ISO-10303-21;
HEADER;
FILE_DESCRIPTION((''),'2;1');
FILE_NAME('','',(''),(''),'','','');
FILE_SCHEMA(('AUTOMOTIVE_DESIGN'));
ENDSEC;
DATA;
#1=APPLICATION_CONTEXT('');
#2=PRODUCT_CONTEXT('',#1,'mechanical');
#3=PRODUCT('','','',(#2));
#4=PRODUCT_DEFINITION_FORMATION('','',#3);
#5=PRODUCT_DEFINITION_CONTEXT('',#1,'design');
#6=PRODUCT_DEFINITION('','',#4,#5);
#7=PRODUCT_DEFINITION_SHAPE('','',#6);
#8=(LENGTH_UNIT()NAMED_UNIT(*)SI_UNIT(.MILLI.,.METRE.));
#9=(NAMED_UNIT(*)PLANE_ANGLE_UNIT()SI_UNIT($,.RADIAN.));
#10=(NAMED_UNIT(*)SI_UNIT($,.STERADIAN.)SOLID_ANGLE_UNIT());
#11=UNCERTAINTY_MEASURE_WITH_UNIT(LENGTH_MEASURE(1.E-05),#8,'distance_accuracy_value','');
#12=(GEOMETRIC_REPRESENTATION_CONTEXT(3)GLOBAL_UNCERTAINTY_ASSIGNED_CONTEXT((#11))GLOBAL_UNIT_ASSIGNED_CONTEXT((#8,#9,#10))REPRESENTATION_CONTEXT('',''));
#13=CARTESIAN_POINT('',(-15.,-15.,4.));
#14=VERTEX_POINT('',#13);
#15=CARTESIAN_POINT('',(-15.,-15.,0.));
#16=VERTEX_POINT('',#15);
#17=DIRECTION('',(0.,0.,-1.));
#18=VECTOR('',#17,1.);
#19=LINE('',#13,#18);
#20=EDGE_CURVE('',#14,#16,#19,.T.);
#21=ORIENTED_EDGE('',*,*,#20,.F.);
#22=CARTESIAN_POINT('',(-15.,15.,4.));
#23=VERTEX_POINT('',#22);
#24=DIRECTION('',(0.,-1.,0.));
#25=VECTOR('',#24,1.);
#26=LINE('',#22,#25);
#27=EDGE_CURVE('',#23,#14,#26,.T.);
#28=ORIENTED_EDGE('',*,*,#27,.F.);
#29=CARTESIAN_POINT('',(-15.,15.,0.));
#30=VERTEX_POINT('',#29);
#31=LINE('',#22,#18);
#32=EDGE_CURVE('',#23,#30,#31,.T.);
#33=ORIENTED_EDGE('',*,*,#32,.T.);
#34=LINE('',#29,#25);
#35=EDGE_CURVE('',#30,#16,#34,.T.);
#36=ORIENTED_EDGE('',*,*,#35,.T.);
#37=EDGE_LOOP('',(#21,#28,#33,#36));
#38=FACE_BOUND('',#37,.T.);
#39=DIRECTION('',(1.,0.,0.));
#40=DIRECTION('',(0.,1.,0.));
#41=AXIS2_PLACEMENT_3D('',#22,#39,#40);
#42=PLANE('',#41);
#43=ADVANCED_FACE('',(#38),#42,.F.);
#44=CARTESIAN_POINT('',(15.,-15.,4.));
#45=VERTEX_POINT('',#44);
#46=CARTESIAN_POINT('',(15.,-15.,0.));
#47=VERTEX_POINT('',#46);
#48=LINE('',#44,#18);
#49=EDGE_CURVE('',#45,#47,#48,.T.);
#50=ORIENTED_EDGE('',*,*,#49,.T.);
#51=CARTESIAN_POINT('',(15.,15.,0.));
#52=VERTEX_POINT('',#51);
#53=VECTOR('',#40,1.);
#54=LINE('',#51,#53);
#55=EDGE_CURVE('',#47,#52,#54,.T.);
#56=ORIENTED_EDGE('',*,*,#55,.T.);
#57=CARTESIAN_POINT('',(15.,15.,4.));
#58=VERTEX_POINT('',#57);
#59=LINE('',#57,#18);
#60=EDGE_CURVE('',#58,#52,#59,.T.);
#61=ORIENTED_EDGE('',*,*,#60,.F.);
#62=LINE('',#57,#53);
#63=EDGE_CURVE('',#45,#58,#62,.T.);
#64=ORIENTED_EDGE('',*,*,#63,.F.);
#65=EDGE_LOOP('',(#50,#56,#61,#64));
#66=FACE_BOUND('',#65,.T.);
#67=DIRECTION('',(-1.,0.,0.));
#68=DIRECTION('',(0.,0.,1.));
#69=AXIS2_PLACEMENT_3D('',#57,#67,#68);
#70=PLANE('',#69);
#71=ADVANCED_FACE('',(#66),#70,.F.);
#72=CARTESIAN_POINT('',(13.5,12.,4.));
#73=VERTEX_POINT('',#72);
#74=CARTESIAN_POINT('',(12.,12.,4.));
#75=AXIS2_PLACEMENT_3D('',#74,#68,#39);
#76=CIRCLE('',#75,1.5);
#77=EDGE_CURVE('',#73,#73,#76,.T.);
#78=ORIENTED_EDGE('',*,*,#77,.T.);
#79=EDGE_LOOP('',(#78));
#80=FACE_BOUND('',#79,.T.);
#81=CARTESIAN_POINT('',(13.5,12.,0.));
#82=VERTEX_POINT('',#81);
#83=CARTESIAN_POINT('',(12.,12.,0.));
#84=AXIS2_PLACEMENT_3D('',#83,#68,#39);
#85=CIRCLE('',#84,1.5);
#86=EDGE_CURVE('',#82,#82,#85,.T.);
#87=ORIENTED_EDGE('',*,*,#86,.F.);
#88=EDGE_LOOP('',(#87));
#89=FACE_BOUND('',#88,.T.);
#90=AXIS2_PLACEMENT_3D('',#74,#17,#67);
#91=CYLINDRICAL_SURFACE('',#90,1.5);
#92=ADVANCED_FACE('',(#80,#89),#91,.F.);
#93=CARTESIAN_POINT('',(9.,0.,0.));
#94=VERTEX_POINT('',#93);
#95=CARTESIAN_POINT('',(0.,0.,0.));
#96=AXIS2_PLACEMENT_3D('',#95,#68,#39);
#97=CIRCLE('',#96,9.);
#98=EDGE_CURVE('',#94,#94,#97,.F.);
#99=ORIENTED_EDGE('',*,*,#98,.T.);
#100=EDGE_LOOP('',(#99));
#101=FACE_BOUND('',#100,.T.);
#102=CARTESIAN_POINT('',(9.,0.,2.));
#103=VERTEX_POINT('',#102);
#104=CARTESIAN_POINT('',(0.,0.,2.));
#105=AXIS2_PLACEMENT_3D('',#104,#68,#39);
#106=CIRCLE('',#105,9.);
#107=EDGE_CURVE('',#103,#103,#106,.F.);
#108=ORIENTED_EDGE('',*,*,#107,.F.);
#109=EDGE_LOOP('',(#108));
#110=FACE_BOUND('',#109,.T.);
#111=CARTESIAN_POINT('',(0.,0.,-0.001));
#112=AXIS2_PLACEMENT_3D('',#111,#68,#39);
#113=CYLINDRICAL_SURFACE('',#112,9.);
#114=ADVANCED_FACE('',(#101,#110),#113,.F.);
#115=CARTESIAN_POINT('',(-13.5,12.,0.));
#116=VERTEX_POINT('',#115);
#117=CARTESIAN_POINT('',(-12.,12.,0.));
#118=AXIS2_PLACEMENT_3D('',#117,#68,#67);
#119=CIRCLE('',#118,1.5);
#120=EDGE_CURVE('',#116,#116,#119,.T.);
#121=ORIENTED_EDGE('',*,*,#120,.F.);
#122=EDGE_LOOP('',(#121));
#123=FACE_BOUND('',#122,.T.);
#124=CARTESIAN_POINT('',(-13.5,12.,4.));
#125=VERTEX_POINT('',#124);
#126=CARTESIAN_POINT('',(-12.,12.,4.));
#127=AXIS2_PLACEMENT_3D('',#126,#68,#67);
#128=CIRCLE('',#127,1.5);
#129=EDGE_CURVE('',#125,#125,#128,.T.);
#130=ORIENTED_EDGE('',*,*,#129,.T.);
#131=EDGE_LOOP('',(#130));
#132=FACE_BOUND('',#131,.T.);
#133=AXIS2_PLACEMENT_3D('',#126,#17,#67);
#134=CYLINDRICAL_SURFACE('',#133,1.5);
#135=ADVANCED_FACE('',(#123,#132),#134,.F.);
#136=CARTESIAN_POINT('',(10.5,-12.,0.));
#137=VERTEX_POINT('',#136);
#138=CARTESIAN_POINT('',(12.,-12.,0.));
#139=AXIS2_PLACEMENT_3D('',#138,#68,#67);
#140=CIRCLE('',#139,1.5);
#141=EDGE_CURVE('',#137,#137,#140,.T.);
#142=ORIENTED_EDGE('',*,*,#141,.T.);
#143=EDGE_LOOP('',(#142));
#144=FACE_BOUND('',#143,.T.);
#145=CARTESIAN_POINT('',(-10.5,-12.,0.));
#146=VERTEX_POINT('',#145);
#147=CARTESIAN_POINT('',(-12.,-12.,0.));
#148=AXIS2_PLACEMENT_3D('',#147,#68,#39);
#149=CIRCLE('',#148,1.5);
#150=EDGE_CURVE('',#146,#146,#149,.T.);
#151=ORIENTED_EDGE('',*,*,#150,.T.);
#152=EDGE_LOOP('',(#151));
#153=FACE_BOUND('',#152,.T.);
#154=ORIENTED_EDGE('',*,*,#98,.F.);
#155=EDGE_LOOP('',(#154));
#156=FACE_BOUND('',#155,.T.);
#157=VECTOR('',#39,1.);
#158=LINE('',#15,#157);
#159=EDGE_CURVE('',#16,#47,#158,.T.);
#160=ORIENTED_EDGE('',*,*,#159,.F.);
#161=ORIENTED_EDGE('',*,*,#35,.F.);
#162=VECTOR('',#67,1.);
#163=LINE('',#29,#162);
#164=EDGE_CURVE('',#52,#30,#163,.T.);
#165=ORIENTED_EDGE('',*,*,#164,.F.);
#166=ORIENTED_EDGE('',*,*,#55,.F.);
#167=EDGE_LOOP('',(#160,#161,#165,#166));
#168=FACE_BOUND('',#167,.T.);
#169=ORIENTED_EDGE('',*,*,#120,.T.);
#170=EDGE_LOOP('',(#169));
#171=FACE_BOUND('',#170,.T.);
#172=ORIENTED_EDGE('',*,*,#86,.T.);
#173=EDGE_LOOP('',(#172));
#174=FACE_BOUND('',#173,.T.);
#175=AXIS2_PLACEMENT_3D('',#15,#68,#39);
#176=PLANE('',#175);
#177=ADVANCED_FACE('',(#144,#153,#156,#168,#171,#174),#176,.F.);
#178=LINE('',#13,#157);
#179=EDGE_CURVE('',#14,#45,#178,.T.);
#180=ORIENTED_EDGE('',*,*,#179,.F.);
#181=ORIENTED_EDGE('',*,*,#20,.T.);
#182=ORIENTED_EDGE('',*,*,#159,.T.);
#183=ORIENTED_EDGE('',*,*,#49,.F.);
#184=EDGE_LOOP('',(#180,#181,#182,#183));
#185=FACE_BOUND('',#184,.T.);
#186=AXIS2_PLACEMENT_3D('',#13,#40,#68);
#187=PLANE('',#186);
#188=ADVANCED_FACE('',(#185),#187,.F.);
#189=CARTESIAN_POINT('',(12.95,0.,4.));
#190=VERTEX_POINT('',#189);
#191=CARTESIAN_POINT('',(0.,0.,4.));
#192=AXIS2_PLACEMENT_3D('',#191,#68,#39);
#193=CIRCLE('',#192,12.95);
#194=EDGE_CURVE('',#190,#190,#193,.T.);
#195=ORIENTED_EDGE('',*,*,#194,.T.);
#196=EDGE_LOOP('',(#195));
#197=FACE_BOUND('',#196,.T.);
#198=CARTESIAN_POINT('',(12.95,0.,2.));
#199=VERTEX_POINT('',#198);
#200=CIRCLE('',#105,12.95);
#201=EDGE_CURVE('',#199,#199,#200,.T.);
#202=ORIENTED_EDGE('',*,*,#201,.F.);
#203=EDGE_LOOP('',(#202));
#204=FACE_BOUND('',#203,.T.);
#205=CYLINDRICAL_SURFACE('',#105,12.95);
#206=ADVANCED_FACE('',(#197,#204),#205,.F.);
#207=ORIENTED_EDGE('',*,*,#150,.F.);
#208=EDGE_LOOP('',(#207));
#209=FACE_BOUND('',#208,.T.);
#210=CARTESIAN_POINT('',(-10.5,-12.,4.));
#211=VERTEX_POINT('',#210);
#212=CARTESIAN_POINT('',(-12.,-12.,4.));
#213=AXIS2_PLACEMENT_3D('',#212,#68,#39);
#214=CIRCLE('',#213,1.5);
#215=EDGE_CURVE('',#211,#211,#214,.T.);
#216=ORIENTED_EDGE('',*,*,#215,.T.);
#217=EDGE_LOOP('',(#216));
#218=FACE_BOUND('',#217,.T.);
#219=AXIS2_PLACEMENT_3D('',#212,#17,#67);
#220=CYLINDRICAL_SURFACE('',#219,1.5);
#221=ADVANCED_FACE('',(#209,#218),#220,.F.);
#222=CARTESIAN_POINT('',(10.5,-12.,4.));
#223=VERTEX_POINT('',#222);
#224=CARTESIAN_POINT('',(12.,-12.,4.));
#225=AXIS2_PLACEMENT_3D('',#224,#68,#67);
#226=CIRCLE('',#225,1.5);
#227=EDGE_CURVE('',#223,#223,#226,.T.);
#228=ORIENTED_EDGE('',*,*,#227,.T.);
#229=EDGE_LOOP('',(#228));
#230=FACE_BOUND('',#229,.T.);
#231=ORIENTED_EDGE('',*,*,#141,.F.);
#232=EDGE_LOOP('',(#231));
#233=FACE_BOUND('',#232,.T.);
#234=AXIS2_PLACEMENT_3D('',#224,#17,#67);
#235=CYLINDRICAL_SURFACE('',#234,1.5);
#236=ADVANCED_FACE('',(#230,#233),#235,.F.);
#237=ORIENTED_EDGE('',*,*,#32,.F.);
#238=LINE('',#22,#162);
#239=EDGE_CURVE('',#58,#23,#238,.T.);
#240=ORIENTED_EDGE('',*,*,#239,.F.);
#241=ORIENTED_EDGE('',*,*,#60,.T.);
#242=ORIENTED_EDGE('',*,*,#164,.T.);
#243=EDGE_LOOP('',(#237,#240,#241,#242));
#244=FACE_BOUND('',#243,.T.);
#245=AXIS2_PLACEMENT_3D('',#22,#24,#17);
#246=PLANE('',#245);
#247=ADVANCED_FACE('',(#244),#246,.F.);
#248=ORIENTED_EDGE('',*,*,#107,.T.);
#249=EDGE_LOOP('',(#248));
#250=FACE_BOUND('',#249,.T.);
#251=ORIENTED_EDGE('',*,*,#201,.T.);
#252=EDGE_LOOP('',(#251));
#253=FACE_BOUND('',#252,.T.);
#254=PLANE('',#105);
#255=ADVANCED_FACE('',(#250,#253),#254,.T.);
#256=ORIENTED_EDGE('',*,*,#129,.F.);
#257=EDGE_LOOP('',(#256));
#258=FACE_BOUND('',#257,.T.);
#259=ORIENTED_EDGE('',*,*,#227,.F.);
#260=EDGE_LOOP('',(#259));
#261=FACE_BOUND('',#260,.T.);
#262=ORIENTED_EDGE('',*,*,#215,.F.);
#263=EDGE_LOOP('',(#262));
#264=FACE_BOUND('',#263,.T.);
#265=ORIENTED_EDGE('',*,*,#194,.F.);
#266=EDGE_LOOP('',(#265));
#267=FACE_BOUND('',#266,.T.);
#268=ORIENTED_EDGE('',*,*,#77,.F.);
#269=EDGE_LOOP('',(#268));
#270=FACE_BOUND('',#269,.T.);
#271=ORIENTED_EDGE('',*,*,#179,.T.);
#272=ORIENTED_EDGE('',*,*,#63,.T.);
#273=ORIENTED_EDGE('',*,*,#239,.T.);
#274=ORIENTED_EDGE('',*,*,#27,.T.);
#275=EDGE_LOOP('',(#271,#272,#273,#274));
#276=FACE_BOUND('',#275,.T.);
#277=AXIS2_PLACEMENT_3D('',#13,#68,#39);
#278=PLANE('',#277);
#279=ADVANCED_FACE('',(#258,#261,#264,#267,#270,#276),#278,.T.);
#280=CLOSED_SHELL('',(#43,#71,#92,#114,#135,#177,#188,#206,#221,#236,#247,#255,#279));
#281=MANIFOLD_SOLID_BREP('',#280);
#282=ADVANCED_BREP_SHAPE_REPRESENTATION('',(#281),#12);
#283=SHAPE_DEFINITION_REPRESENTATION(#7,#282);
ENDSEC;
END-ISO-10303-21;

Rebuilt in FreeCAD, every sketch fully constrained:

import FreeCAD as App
import Part
import Sketcher

doc = App.newDocument("Part")
body = doc.addObject("PartDesign::Body", "Body")

sketch1 = body.newObject("Sketcher::SketchObject", "Sketch")
sketch1.AttachmentSupport = (doc.getObject("XY_Plane"), [""])
sketch1.MapMode = "FlatFace"
sketch1.addGeometry([
    Part.LineSegment(App.Vector(-15, 15, 0), App.Vector(-15, -15, 0)),
    Part.LineSegment(App.Vector(-15, -15, 0), App.Vector(15, -15, 0)),
    Part.LineSegment(App.Vector(15, -15, 0), App.Vector(15, 15, 0)),
    Part.LineSegment(App.Vector(15, 15, 0), App.Vector(-15, 15, 0)),
    Part.Circle(App.Vector(-12, -12, 0), App.Vector(0, 0, 1), 1.5),
    Part.Circle(App.Vector(12, -12, 0), App.Vector(0, 0, 1), 1.5),
    Part.Circle(App.Vector(-12, 12, 0), App.Vector(0, 0, 1), 1.5),
    Part.Circle(App.Vector(12, 12, 0), App.Vector(0, 0, 1), 1.5),
], False)
sketch1.addConstraint([
    Sketcher.Constraint("Coincident", 0, 2, 1, 1),
    Sketcher.Constraint("Coincident", 1, 2, 2, 1),
    Sketcher.Constraint("Coincident", 2, 2, 3, 1),
    Sketcher.Constraint("Coincident", 3, 2, 0, 1),
    Sketcher.Constraint("Vertical", 0),
    Sketcher.Constraint("Horizontal", 1),
    Sketcher.Constraint("Vertical", 2),
    Sketcher.Constraint("Horizontal", 3),
    Sketcher.Constraint("Equal", 4, 5),
    Sketcher.Constraint("Equal", 5, 6),
    Sketcher.Constraint("Equal", 6, 7),
    Sketcher.Constraint("Symmetric", 5, 3, 6, 3, -1, 1),
    Sketcher.Constraint("Symmetric", 4, 3, 7, 3, -1, 1),
    Sketcher.Constraint("Symmetric", 0, 2, 2, 2, -1, 1),
    Sketcher.Constraint("Symmetric", 4, 3, 5, 3, -2),
    Sketcher.Constraint("Equal", 3, 0),
    Sketcher.Constraint("Diameter", 4, 3.0),
    Sketcher.Constraint("DistanceX", 1, 1, 1, 2, 30.0),
    Sketcher.Constraint("DistanceX", 4, 3, -1, 1, 12.0),
    Sketcher.Constraint("DistanceY", 4, 3, -1, 1, 12.0),
])
pad1 = body.newObject("PartDesign::Pad", "Pad")
pad1.Profile = sketch1
pad1.Length = 4

sketch2 = body.newObject("Sketcher::SketchObject", "Sketch001")
sketch2.AttachmentSupport = (doc.getObject("XY_Plane"), [""])
sketch2.MapMode = "FlatFace"
sketch2.AttachmentOffset = App.Placement(App.Vector(0, 0, 4), App.Rotation())
sketch2.addGeometry(Part.Circle(App.Vector(0, 0, 0), App.Vector(0, 0, 1), 9), False)
sketch2.addConstraint([
    Sketcher.Constraint("Coincident", 0, 3, -1, 1),
    Sketcher.Constraint("Diameter", 0, 18.0),
])
pocket1 = body.newObject("PartDesign::Pocket", "Pocket")
pocket1.Profile = sketch2
pocket1.Type = "UpToFirst"

sketch3 = body.newObject("Sketcher::SketchObject", "Sketch002")
sketch3.AttachmentSupport = (doc.getObject("XY_Plane"), [""])
sketch3.MapMode = "FlatFace"
sketch3.AttachmentOffset = App.Placement(App.Vector(0, 0, 4), App.Rotation())
sketch3.addGeometry(Part.Circle(App.Vector(0, 0, 0), App.Vector(0, 0, 1), 12.95), False)
sketch3.addConstraint([
    Sketcher.Constraint("Coincident", 0, 3, -1, 1),
    Sketcher.Constraint("Diameter", 0, 25.9),
])
pocket2 = body.newObject("PartDesign::Pocket", "Pocket001")
pocket2.Profile = sketch3
pocket2.Length = 2

doc.recompute()
